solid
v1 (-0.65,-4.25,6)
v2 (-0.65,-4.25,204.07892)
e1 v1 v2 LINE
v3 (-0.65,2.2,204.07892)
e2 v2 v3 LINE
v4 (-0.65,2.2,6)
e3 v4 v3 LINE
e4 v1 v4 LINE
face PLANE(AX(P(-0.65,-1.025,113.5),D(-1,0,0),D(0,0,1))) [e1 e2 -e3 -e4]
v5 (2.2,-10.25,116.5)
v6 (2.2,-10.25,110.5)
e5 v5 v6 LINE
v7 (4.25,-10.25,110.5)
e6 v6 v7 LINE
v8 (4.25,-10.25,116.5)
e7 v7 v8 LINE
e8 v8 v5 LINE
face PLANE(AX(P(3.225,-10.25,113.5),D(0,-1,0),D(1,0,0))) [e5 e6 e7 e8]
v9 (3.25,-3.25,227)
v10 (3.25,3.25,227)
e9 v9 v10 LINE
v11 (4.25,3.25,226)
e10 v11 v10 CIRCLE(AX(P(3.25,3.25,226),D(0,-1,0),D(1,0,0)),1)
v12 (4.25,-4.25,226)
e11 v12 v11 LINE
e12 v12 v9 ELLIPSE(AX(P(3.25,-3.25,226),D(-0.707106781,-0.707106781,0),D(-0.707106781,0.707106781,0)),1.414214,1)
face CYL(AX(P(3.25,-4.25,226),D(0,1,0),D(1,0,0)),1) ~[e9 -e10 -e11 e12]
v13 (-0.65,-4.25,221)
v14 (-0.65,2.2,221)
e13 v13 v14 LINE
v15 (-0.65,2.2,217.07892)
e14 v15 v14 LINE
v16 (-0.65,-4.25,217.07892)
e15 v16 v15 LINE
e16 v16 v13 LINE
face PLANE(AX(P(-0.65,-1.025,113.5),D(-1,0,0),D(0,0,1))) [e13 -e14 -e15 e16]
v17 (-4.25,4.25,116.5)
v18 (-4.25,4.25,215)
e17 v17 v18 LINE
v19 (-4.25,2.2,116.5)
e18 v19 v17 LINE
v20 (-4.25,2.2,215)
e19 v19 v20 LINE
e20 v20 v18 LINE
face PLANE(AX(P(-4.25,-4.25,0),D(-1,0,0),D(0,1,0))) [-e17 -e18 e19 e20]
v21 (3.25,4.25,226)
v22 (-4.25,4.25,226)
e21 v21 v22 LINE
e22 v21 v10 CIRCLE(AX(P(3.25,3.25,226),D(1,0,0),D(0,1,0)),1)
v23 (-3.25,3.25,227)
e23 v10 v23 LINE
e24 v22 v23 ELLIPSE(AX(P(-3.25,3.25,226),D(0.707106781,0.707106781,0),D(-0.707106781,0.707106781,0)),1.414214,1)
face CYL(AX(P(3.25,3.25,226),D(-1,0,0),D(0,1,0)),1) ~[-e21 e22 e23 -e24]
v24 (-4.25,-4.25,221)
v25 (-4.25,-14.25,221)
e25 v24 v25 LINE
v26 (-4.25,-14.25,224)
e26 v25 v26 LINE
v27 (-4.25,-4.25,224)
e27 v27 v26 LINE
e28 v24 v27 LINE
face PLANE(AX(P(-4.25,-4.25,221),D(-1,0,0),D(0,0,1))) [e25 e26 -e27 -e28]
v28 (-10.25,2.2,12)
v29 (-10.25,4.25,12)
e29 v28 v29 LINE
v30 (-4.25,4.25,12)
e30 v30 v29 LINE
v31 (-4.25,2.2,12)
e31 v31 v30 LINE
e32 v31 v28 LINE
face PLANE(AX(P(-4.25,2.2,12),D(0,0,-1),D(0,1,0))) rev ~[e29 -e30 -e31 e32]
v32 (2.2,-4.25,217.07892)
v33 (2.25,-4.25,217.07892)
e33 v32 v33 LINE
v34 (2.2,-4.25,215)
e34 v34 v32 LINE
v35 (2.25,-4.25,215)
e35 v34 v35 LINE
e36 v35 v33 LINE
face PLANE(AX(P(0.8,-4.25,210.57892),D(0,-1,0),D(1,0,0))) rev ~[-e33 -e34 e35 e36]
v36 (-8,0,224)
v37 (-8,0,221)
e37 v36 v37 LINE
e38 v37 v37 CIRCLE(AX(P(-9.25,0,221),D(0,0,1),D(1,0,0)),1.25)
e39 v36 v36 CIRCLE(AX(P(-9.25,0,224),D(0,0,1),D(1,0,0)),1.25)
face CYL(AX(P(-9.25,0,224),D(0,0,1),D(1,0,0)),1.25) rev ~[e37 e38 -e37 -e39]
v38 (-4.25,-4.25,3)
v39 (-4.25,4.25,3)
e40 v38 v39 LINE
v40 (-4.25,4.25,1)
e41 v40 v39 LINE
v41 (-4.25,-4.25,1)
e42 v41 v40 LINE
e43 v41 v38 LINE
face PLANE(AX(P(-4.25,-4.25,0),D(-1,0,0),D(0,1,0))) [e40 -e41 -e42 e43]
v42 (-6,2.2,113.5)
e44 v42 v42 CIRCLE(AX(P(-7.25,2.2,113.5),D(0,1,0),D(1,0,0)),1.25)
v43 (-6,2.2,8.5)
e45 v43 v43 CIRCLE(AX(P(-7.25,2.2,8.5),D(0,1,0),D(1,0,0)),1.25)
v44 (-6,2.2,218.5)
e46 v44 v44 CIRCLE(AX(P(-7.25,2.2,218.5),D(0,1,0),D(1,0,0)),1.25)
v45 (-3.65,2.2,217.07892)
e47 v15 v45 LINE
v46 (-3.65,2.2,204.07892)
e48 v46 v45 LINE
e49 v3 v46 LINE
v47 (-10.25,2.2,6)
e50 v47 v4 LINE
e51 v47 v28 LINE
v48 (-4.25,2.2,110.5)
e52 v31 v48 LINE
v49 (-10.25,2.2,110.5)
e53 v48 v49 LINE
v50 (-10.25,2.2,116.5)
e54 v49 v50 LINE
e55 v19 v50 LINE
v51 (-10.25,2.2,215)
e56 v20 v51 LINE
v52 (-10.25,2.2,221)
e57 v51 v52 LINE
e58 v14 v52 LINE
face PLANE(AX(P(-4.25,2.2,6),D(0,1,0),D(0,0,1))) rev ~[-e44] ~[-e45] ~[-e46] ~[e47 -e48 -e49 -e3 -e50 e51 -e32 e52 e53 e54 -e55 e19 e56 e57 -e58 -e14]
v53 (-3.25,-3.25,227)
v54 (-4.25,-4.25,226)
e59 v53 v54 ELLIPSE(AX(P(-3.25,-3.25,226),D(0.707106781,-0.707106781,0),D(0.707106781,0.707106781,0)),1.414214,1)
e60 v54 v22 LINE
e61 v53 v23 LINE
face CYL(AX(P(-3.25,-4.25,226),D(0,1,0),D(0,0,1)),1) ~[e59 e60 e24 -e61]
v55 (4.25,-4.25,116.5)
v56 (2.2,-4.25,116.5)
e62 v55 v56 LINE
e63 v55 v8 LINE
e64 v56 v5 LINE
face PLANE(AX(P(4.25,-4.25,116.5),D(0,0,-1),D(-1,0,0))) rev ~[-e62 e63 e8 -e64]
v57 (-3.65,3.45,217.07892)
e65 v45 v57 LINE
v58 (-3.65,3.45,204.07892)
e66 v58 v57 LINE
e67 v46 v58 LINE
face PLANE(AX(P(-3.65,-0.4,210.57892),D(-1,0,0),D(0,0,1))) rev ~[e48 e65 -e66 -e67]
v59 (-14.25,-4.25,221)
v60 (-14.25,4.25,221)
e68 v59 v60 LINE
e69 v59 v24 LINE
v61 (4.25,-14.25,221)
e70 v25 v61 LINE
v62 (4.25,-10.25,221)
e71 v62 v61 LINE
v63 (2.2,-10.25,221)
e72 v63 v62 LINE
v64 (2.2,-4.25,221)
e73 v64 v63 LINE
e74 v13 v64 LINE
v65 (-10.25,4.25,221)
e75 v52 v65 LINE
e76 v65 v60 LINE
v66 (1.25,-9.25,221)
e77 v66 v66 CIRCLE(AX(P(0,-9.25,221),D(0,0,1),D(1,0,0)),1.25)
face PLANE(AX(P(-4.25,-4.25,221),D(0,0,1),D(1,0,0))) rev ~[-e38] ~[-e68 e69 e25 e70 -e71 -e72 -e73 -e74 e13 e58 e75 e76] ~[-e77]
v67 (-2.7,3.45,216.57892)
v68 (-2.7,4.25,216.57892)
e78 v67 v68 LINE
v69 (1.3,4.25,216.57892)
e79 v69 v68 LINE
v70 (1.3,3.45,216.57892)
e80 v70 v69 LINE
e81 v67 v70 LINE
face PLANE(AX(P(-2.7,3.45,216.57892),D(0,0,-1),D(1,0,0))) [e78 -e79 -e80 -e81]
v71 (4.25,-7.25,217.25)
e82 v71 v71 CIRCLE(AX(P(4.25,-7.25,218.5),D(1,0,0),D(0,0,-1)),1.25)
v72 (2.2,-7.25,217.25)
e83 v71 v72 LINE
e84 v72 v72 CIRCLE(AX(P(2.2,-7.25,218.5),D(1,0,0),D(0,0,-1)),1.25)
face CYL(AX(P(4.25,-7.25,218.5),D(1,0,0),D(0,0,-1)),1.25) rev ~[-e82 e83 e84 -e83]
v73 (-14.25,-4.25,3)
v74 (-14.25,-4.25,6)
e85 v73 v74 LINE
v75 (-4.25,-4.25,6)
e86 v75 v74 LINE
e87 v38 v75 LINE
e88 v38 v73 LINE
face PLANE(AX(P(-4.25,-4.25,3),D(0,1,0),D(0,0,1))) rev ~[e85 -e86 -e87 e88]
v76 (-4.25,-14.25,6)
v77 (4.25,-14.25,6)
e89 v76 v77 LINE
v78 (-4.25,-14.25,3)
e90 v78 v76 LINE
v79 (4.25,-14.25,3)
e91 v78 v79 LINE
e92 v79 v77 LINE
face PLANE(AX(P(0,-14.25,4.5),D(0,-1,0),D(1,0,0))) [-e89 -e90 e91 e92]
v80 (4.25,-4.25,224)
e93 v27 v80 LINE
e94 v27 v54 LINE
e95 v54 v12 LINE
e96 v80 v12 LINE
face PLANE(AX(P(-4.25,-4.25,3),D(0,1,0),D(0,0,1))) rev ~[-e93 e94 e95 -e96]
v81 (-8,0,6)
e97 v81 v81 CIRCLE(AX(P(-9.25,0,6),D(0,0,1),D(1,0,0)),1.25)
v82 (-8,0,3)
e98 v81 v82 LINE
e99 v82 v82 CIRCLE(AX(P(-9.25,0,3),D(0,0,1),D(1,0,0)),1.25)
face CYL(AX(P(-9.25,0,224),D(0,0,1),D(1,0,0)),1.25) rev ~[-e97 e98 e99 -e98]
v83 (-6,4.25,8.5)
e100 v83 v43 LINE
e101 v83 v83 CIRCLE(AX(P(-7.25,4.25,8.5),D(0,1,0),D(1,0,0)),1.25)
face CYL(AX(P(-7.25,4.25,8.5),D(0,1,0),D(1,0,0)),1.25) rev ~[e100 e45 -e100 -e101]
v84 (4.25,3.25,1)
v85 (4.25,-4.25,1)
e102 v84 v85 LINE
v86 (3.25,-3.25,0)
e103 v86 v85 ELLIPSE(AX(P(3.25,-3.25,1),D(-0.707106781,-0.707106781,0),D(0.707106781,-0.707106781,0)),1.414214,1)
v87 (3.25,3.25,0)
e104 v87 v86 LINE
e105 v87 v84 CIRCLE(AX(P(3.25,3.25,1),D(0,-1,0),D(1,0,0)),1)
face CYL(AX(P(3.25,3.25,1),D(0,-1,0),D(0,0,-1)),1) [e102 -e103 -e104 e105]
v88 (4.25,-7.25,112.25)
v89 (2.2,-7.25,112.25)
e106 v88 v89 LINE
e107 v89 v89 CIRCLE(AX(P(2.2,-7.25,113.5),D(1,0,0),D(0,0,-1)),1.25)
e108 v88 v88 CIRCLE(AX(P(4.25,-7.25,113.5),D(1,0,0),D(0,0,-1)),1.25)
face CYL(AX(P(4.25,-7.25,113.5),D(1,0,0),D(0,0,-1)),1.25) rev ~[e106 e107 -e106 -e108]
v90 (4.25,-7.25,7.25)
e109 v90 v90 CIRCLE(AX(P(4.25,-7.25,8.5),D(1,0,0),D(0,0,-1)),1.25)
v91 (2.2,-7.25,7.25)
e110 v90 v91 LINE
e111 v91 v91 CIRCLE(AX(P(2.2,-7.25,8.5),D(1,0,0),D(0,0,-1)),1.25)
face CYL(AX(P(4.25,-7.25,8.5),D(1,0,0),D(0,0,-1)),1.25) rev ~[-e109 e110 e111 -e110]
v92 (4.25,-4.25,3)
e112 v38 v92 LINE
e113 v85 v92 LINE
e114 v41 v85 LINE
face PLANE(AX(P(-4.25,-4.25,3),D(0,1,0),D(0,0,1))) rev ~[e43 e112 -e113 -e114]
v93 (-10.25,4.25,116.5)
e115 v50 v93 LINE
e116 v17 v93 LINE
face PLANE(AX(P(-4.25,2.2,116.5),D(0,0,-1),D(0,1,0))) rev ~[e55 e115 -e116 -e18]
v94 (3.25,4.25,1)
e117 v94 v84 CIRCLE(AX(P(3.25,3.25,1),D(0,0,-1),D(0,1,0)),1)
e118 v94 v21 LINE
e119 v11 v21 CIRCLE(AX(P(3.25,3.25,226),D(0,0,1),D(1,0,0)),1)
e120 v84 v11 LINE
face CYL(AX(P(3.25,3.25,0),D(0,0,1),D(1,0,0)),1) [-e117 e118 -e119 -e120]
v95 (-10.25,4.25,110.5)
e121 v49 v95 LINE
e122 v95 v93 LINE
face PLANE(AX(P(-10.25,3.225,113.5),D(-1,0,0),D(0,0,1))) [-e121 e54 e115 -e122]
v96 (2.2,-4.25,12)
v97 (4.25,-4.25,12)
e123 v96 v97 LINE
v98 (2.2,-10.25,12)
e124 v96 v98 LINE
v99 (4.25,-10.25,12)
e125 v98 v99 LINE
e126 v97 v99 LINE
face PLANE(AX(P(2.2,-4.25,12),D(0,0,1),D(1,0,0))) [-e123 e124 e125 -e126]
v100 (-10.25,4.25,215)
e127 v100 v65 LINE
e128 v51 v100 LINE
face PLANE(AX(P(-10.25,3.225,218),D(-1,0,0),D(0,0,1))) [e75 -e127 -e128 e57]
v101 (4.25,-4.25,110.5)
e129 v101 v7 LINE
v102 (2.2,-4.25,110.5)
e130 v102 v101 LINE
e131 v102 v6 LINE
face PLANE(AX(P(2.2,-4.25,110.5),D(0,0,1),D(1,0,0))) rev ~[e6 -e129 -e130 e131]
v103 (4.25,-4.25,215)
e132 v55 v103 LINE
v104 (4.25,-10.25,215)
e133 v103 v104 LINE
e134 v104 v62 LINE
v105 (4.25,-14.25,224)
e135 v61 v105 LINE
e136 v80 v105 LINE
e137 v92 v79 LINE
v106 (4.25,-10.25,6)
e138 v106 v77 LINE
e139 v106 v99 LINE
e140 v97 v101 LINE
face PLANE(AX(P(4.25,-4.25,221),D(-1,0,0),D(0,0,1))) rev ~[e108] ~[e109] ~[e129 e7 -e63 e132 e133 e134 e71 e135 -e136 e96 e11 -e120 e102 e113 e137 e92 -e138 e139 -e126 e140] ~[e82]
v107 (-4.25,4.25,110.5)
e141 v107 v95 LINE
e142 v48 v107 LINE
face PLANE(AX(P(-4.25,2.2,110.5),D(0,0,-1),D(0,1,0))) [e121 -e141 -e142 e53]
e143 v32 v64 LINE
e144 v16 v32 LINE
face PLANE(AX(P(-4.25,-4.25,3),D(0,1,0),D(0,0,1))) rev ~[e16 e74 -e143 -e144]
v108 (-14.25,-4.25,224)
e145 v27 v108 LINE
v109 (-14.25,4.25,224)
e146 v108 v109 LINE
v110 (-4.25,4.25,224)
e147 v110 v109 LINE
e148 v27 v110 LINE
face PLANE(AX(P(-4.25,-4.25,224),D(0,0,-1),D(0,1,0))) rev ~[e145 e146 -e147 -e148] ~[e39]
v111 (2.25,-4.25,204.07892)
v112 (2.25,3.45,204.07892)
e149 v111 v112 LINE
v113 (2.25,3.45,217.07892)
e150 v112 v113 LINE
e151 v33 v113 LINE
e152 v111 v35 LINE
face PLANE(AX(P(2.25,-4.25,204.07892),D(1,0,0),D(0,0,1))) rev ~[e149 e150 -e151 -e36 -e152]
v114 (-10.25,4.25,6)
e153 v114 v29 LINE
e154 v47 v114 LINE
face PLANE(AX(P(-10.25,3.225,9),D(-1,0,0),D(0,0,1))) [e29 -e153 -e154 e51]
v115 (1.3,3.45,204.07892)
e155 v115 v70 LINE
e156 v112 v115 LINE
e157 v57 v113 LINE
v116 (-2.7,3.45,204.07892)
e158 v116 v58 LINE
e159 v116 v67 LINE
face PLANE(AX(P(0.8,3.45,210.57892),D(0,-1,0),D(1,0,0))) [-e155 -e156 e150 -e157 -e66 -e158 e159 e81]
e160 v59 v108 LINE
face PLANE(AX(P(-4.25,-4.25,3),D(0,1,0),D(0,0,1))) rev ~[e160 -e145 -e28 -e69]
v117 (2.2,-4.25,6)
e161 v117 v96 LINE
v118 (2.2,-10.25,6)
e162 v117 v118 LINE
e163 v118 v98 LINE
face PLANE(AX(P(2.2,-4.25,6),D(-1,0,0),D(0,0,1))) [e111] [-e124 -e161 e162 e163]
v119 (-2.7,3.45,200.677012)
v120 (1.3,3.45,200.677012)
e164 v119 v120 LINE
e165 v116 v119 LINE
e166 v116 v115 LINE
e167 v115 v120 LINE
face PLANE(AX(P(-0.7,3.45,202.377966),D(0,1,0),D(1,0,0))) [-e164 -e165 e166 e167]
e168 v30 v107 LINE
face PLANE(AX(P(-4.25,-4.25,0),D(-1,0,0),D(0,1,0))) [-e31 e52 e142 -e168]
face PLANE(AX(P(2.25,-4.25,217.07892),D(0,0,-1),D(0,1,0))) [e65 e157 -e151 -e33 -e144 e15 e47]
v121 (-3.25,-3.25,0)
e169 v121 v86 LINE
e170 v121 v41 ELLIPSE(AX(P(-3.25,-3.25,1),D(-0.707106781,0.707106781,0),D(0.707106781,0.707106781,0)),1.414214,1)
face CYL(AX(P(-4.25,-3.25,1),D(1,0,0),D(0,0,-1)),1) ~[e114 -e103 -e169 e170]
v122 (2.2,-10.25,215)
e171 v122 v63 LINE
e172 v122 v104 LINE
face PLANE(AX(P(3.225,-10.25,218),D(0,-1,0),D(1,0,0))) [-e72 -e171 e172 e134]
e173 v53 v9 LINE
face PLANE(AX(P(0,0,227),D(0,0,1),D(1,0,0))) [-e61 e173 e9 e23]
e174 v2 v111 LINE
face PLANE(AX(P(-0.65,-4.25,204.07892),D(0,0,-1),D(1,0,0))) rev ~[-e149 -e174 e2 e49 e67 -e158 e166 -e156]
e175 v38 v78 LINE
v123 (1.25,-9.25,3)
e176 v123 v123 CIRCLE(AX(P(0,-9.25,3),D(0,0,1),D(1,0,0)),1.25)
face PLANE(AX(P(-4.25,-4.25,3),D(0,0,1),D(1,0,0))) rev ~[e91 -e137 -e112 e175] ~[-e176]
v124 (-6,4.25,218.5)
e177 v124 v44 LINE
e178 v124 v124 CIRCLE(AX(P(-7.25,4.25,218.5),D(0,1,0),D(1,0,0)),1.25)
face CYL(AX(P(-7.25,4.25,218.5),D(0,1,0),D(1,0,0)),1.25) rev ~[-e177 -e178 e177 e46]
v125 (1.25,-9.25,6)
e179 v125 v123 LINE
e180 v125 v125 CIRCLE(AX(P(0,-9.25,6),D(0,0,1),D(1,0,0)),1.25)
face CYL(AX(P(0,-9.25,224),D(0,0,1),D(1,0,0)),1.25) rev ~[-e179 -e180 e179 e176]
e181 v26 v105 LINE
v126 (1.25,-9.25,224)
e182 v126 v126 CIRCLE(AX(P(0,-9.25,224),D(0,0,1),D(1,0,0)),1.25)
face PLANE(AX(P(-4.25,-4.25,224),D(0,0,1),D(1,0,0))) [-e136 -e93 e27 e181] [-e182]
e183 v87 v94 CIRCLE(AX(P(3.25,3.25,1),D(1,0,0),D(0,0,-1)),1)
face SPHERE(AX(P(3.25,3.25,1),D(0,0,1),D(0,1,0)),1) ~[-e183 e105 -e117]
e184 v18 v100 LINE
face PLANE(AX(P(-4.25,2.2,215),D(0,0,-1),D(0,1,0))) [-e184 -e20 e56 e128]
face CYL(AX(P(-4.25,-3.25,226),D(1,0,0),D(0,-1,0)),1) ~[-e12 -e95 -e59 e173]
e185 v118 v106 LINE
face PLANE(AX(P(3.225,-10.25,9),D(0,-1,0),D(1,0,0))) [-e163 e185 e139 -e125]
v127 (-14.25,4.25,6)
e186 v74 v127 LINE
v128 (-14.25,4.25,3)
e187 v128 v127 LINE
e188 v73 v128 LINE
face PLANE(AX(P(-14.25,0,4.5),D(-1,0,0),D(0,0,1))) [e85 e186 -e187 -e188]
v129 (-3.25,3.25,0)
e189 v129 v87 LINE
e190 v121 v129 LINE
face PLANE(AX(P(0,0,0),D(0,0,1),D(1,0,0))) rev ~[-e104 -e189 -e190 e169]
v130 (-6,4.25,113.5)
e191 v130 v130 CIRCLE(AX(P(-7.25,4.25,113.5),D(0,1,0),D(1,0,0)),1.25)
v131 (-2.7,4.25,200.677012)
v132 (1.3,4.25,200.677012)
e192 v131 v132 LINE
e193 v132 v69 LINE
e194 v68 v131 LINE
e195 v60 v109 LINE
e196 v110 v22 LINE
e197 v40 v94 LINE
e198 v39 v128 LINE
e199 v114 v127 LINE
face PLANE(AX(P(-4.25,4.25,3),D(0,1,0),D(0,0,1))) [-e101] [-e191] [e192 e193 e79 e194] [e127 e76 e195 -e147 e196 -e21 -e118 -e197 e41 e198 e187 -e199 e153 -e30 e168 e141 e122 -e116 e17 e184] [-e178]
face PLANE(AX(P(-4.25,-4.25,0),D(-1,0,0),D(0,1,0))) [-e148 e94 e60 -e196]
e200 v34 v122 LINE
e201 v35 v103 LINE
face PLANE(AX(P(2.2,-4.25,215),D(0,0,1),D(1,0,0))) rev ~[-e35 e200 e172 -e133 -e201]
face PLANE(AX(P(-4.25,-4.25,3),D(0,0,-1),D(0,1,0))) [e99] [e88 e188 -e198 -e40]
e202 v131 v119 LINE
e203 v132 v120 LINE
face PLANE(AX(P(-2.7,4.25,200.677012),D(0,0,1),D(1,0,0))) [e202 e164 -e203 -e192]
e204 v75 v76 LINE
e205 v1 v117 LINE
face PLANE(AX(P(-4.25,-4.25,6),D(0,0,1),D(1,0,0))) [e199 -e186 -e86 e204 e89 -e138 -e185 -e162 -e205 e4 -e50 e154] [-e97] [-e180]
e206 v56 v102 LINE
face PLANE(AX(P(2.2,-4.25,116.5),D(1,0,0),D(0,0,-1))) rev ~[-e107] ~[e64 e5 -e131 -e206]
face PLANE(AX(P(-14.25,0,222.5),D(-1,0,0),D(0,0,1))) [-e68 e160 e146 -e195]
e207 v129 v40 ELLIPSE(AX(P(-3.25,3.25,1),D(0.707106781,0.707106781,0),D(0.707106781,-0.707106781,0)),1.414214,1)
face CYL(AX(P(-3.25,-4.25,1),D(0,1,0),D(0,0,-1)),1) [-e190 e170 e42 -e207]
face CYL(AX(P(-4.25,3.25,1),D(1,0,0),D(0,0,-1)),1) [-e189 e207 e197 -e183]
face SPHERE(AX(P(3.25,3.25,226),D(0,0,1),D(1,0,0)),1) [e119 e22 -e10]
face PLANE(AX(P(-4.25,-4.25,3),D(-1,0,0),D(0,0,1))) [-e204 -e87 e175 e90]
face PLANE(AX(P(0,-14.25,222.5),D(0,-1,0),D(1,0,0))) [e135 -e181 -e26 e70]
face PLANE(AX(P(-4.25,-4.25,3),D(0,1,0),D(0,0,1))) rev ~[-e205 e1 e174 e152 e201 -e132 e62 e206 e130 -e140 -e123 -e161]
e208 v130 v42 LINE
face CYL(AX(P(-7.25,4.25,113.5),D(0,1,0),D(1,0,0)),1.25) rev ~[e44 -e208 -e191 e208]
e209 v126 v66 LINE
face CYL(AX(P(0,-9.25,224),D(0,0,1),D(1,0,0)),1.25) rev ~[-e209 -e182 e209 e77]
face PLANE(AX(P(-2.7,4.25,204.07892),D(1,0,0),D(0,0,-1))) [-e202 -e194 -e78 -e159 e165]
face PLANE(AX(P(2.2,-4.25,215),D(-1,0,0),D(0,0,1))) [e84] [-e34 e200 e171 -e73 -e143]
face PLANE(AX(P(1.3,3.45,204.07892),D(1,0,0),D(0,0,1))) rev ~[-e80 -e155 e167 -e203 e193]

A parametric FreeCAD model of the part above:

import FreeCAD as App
import Part
import Sketcher

V = App.Vector


def edges_at(feature, points):
    """Names of the edges that pass closest to the given points."""
    edges = feature.Shape.Edges
    near = lambda p: min(range(len(edges)), key=lambda i: edges[i].distToShape(Part.Vertex(*p))[0])
    return sorted({f"Edge{near(p) + 1}" for p in points})

doc = App.newDocument("Part")
body = doc.addObject("PartDesign::Body", "Body")

# Sketch on XY plane
sketch1 = doc.addObject("Sketcher::SketchObject", "Sketch")
body.addObject(sketch1)
sketch1.AttachmentSupport = (doc.XY_Plane, [""])
sketch1.MapMode = "FlatFace"
sketch1.addGeometry([
    Part.LineSegment(V(-4, 4, 0), V(-4, -4, 0)),
    Part.LineSegment(V(-4, -4, 0), V(4, -4, 0)),
    Part.LineSegment(V(4, -4, 0), V(4, 4, 0)),
    Part.LineSegment(V(4, 4, 0), V(-4, 4, 0)),
], False)
sketch1.addConstraint([
    Sketcher.Constraint("Coincident", 0, 2, 1, 1),
    Sketcher.Constraint("Coincident", 1, 2, 2, 1),
    Sketcher.Constraint("Coincident", 2, 2, 3, 1),
    Sketcher.Constraint("Coincident", 3, 2, 0, 1),
    Sketcher.Constraint("Vertical", 0),
    Sketcher.Constraint("Horizontal", 1),
    Sketcher.Constraint("Vertical", 2),
    Sketcher.Constraint("Horizontal", 3),
    Sketcher.Constraint("Symmetric", 0, 2, 2, 2, -1, 1),
    Sketcher.Constraint("Equal", 3, 0),
    Sketcher.Constraint("DistanceX", 1, 1, 1, 2, 8.5),
])
pad1 = doc.addObject("PartDesign::Pad", "Pad")
body.addObject(pad1)
pad1.Profile = sketch1
pad1.Length = 227
doc.recompute()

fillet = doc.addObject("PartDesign::Fillet", "Fillet")
body.addObject(fillet)
fillet.Base = (pad1, edges_at(pad1, [(4.25, 4.25, 113.5)]))
fillet.Radius = 1
doc.recompute()

fillet2 = doc.addObject("PartDesign::Fillet", "Fillet001")
body.addObject(fillet2)
fillet2.Base = (fillet, edges_at(fillet, [
    (4.25, -0.5, 227),
    (-0.5, 4.25, 227),
    (3.957, 3.957, 227),
    (-4.25, 0, 227),
    (0, -4.25, 227),
]))
fillet2.Radius = 1
doc.recompute()

fillet3 = doc.addObject("PartDesign::Fillet", "Fillet002")
body.addObject(fillet3)
fillet3.Base = (fillet2, edges_at(fillet2, [
    (-0.5, 4.25, 0),
    (3.957, 3.957, 0),
    (4.25, -0.5, 0),
    (0, -4.25, 0),
    (-4.25, 0, 0),
]))
fillet3.Radius = 1

# Sketch on YZ plane
sketch2 = doc.addObject("Sketcher::SketchObject", "Sketch001")
body.addObject(sketch2)
sketch2.AttachmentSupport = (doc.YZ_Plane, [""])
sketch2.MapMode = "FlatFace"
sketch2.AttachmentOffset = App.Placement(V(0, 0, -4.25), App.Rotation())
sketch2.addGeometry([
    Part.LineSegment(V(2, 6, 0), V(-4, 6, 0)),
    Part.LineSegment(V(-4, 6, 0), V(-4, 221, 0)),
    Part.LineSegment(V(-4, 221, 0), V(2, 221, 0)),
    Part.LineSegment(V(2, 221, 0), V(2, 6, 0)),
], False)
sketch2.addConstraint([
    Sketcher.Constraint("Coincident", 0, 2, 1, 1),
    Sketcher.Constraint("Coincident", 1, 2, 2, 1),
    Sketcher.Constraint("Coincident", 2, 2, 3, 1),
    Sketcher.Constraint("Coincident", 3, 2, 0, 1),
    Sketcher.Constraint("Horizontal", 0),
    Sketcher.Constraint("Vertical", 1),
    Sketcher.Constraint("Horizontal", 2),
    Sketcher.Constraint("Vertical", 3),
    Sketcher.Constraint("DistanceY", 1, 1, 1, 2, 215.0),
    Sketcher.Constraint("DistanceY", -1, 1, 0, 2, 6.0),
    Sketcher.Constraint("DistanceX", 0, 2, 0, 1, 6.45),
    Sketcher.Constraint("DistanceX", -1, 1, 2, 2, 2.2),
])
pocket1 = doc.addObject("PartDesign::Pocket", "Pocket")
body.addObject(pocket1)
pocket1.Profile = sketch2
pocket1.Length = 3.6
pocket1.Reversed = True

# Sketch on YZ plane
sketch3 = doc.addObject("Sketcher::SketchObject", "Sketch002")
body.addObject(sketch3)
sketch3.AttachmentSupport = (doc.YZ_Plane, [""])
sketch3.MapMode = "FlatFace"
sketch3.AttachmentOffset = App.Placement(V(0, 0, -4.25), App.Rotation())
sketch3.addGeometry([
    Part.LineSegment(V(4.2, 3, 0), V(-4.2, 3, 0)),  # 0
    Part.LineSegment(V(-4.2, 3, 0), V(-4.2, 6, 0)),  # 1
    Part.LineSegment(V(-4.2, 6, 0), V(4.2, 6, 0)),  # 2
    Part.LineSegment(V(4.2, 6, 0), V(4.2, 3, 0)),  # 3
    Part.LineSegment(V(4.2, 221, 0), V(-4.2, 221, 0)),  # 4
    Part.LineSegment(V(-4.2, 221, 0), V(-4.2, 224, 0)),  # 5
    Part.LineSegment(V(-4.2, 224, 0), V(4.2, 224, 0)),  # 6
    Part.LineSegment(V(4.2, 224, 0), V(4.2, 221, 0)),  # 7
], False)
sketch3.addConstraint([
    Sketcher.Constraint("Coincident", 0, 2, 1, 1),
    Sketcher.Constraint("Coincident", 1, 2, 2, 1),
    Sketcher.Constraint("Coincident", 2, 2, 3, 1),
    Sketcher.Constraint("Coincident", 3, 2, 0, 1),
    Sketcher.Constraint("Coincident", 4, 2, 5, 1),
    Sketcher.Constraint("Coincident", 5, 2, 6, 1),
    Sketcher.Constraint("Coincident", 6, 2, 7, 1),
    Sketcher.Constraint("Coincident", 7, 2, 4, 1),
    Sketcher.Constraint("Horizontal", 0),
    Sketcher.Constraint("Vertical", 1),
    Sketcher.Constraint("Horizontal", 2),
    Sketcher.Constraint("Vertical", 3),
    Sketcher.Constraint("Horizontal", 4),
    Sketcher.Constraint("Vertical", 5),
    Sketcher.Constraint("Horizontal", 6),
    Sketcher.Constraint("Vertical", 7),
    Sketcher.Constraint("Vertical", 1, 2, 4, 2),
    Sketcher.Constraint("Vertical", 3, 2, 6, 2),
    Sketcher.Constraint("Equal", 3, 5),
    Sketcher.Constraint("DistanceY", 1, 1, 1, 2, 3.0),
    Sketcher.Constraint("DistanceX", 0, 2, 0, 1, 8.5),
    Sketcher.Constraint("DistanceY", -1, 1, 0, 2, 3.0),
    Sketcher.Constraint("DistanceY", -1, 1, 4, 2, 221.0),
    Sketcher.Constraint("DistanceX", 0, 2, -1, 1, 4.25),
])
pad2 = doc.addObject("PartDesign::Pad", "Pad001")
body.addObject(pad2)
pad2.Profile = sketch3
pad2.Length = 10
pad2.Reversed = True

# Sketch on XZ plane
sketch4 = doc.addObject("Sketcher::SketchObject", "Sketch003")
body.addObject(sketch4)
sketch4.AttachmentSupport = (doc.XZ_Plane, [""])
sketch4.MapMode = "FlatFace"
sketch4.AttachmentOffset = App.Placement(V(0, 0, 4.25), App.Rotation())
sketch4.addGeometry([
    Part.LineSegment(V(-4.2, 224, 0), V(-4.2, 221, 0)),  # 0
    Part.LineSegment(V(-4.2, 221, 0), V(4.2, 221, 0)),  # 1
    Part.LineSegment(V(4.2, 221, 0), V(4.2, 224, 0)),  # 2
    Part.LineSegment(V(4.2, 224, 0), V(-4.2, 224, 0)),  # 3
    Part.LineSegment(V(-4.2, 6, 0), V(-4.2, 3, 0)),  # 4
    Part.LineSegment(V(-4.2, 3, 0), V(4.2, 3, 0)),  # 5
    Part.LineSegment(V(4.2, 3, 0), V(4.2, 6, 0)),  # 6
    Part.LineSegment(V(4.2, 6, 0), V(-4.2, 6, 0)),  # 7
], False)
sketch4.addConstraint([
    Sketcher.Constraint("Coincident", 0, 2, 1, 1),
    Sketcher.Constraint("Coincident", 1, 2, 2, 1),
    Sketcher.Constraint("Coincident", 2, 2, 3, 1),
    Sketcher.Constraint("Coincident", 3, 2, 0, 1),
    Sketcher.Constraint("Coincident", 4, 2, 5, 1),
    Sketcher.Constraint("Coincident", 5, 2, 6, 1),
    Sketcher.Constraint("Coincident", 6, 2, 7, 1),
    Sketcher.Constraint("Coincident", 7, 2, 4, 1),
    Sketcher.Constraint("Vertical", 0),
    Sketcher.Constraint("Horizontal", 1),
    Sketcher.Constraint("Vertical", 2),
    Sketcher.Constraint("Horizontal", 3),
    Sketcher.Constraint("Vertical", 4),
    Sketcher.Constraint("Horizontal", 5),
    Sketcher.Constraint("Vertical", 6),
    Sketcher.Constraint("Horizontal", 7),
    Sketcher.Constraint("Vertical", 3, 2, 4, 2),
    Sketcher.Constraint("Vertical", 2, 2, 5, 2),
    Sketcher.Constraint("Equal", 2, 4),
    Sketcher.Constraint("DistanceY", 0, 2, 0, 1, 3.0),
    Sketcher.Constraint("DistanceX", 1, 1, 1, 2, 8.5),
    Sketcher.Constraint("DistanceY", -1, 1, 0, 2, 221.0),
    Sketcher.Constraint("DistanceY", -1, 1, 4, 2, 3.0),
    Sketcher.Constraint("DistanceX", 0, 2, -1, 1, 4.25),
])
pad3 = doc.addObject("PartDesign::Pad", "Pad002")
body.addObject(pad3)
pad3.Profile = sketch4
pad3.Length = 10

# Sketch on YZ plane
sketch5 = doc.addObject("Sketcher::SketchObject", "Sketch004")
body.addObject(sketch5)
sketch5.AttachmentSupport = (doc.YZ_Plane, [""])
sketch5.MapMode = "FlatFace"
sketch5.AttachmentOffset = App.Placement(V(0, 0, -4.25), App.Rotation())
sketch5.addGeometry([
    Part.LineSegment(V(4.2, 6, 0), V(2.2, 6, 0)),  # 0
    Part.LineSegment(V(2.2, 6, 0), V(2.2, 12, 0)),  # 1
    Part.LineSegment(V(2.2, 12, 0), V(4.2, 12, 0)),  # 2
    Part.LineSegment(V(4.2, 12, 0), V(4.2, 6, 0)),  # 3
    Part.LineSegment(V(4.2, 215, 0), V(2.2, 215, 0)),  # 4
    Part.LineSegment(V(2.2, 215, 0), V(2.2, 221, 0)),  # 5
    Part.LineSegment(V(2.2, 221, 0), V(4.2, 221, 0)),  # 6
    Part.LineSegment(V(4.2, 221, 0), V(4.2, 215, 0)),  # 7
    Part.LineSegment(V(4.2, 110.5, 0), V(2.2, 110.5, 0)),  # 8
    Part.LineSegment(V(2.2, 110.5, 0), V(2.2, 116.5, 0)),  # 9
    Part.LineSegment(V(2.2, 116.5, 0), V(4.2, 116.5, 0)),  # 10
    Part.LineSegment(V(4.2, 116.5, 0), V(4.2, 110.5, 0)),  # 11
], False)
sketch5.addConstraint([
    Sketcher.Constraint("Coincident", 0, 2, 1, 1),
    Sketcher.Constraint("Coincident", 1, 2, 2, 1),
    Sketcher.Constraint("Coincident", 2, 2, 3, 1),
    Sketcher.Constraint("Coincident", 3, 2, 0, 1),
    Sketcher.Constraint("Coincident", 4, 2, 5, 1),
    Sketcher.Constraint("Coincident", 5, 2, 6, 1),
    Sketcher.Constraint("Coincident", 6, 2, 7, 1),
    Sketcher.Constraint("Coincident", 7, 2, 4, 1),
    Sketcher.Constraint("Coincident", 8, 2, 9, 1),
    Sketcher.Constraint("Coincident", 9, 2, 10, 1),
    Sketcher.Constraint("Coincident", 10, 2, 11, 1),
    Sketcher.Constraint("Coincident", 11, 2, 8, 1),
    Sketcher.Constraint("Horizontal", 0),
    Sketcher.Constraint("Vertical", 1),
    Sketcher.Constraint("Horizontal", 2),
    Sketcher.Constraint("Vertical", 3),
    Sketcher.Constraint("Horizontal", 4),
    Sketcher.Constraint("Vertical", 5),
    Sketcher.Constraint("Horizontal", 6),
    Sketcher.Constraint("Vertical", 7),
    Sketcher.Constraint("Horizontal", 8),
    Sketcher.Constraint("Vertical", 9),
    Sketcher.Constraint("Horizontal", 10),
    Sketcher.Constraint("Vertical", 11),
    Sketcher.Constraint("Vertical", 1, 2, 4, 2),
    Sketcher.Constraint("Vertical", 3, 2, 6, 2),
    Sketcher.Constraint("Vertical", 5, 2, 8, 2),
    Sketcher.Constraint("Vertical", 7, 2, 10, 2),
    Sketcher.Constraint("Equal", 3, 5),
    Sketcher.Constraint("Equal", 7, 9),
    Sketcher.Constraint("DistanceY", 1, 1, 1, 2, 6.0),
    Sketcher.Constraint("DistanceY", -1, 1, 0, 2, 6.0),
    Sketcher.Constraint("DistanceY", -1, 1, 4, 2, 215.0),
    Sketcher.Constraint("DistanceX", 0, 2, 0, 1, 2.05),
    Sketcher.Constraint("DistanceX", -1, 1, 0, 2, 2.2),
    Sketcher.Constraint("DistanceY", -1, 1, 8, 2, 110.5),
])
pad4 = doc.addObject("PartDesign::Pad", "Pad003")
body.addObject(pad4)
pad4.Profile = sketch5
pad4.Length = 6
pad4.Reversed = True

# Sketch on XZ plane
sketch6 = doc.addObject("Sketcher::SketchObject", "Sketch005")
body.addObject(sketch6)
sketch6.AttachmentSupport = (doc.XZ_Plane, [""])
sketch6.MapMode = "FlatFace"
sketch6.AttachmentOffset = App.Placement(V(0, 0, 4.25), App.Rotation())
sketch6.addGeometry([
    Part.LineSegment(V(2.2, 12, 0), V(2.2, 6, 0)),  # 0
    Part.LineSegment(V(2.2, 6, 0), V(4.2, 6, 0)),  # 1
    Part.LineSegment(V(4.2, 6, 0), V(4.2, 12, 0)),  # 2
    Part.LineSegment(V(4.2, 12, 0), V(2.2, 12, 0)),  # 3
    Part.LineSegment(V(4.2, 116.5, 0), V(2.2, 116.5, 0)),  # 4
    Part.LineSegment(V(2.2, 116.5, 0), V(2.2, 110.5, 0)),  # 5
    Part.LineSegment(V(2.2, 110.5, 0), V(4.2, 110.5, 0)),  # 6
    Part.LineSegment(V(4.2, 110.5, 0), V(4.2, 116.5, 0)),  # 7
    Part.LineSegment(V(2.2, 221, 0), V(2.2, 215, 0)),  # 8
    Part.LineSegment(V(2.2, 215, 0), V(4.2, 215, 0)),  # 9
    Part.LineSegment(V(4.2, 215, 0), V(4.2, 221, 0)),  # 10
    Part.LineSegment(V(4.2, 221, 0), V(2.2, 221, 0)),  # 11
], False)
sketch6.addConstraint([
    Sketcher.Constraint("Coincident", 0, 2, 1, 1),
    Sketcher.Constraint("Coincident", 1, 2, 2, 1),
    Sketcher.Constraint("Coincident", 2, 2, 3, 1),
    Sketcher.Constraint("Coincident", 3, 2, 0, 1),
    Sketcher.Constraint("Coincident", 4, 2, 5, 1),
    Sketcher.Constraint("Coincident", 5, 2, 6, 1),
    Sketcher.Constraint("Coincident", 6, 2, 7, 1),
    Sketcher.Constraint("Coincident", 7, 2, 4, 1),
    Sketcher.Constraint("Coincident", 8, 2, 9, 1),
    Sketcher.Constraint("Coincident", 9, 2, 10, 1),
    Sketcher.Constraint("Coincident", 10, 2, 11, 1),
    Sketcher.Constraint("Coincident", 11, 2, 8, 1),
    Sketcher.Constraint("Vertical", 0),
    Sketcher.Constraint("Horizontal", 1),
    Sketcher.Constraint("Vertical", 2),
    Sketcher.Constraint("Horizontal", 3),
    Sketcher.Constraint("Horizontal", 4),
    Sketcher.Constraint("Vertical", 5),
    Sketcher.Constraint("Horizontal", 6),
    Sketcher.Constraint("Vertical", 7),
    Sketcher.Constraint("Vertical", 8),
    Sketcher.Constraint("Horizontal", 9),
    Sketcher.Constraint("Vertical", 10),
    Sketcher.Constraint("Horizontal", 11),
    Sketcher.Constraint("Vertical", 3, 2, 4, 2),
    Sketcher.Constraint("Vertical", 2, 2, 6, 2),
    Sketcher.Constraint("Vertical", 5, 2, 8, 2),
    Sketcher.Constraint("Vertical", 7, 2, 9, 2),
    Sketcher.Constraint("Equal", 2, 5),
    Sketcher.Constraint("Equal", 7, 8),
    Sketcher.Constraint("DistanceY", 0, 2, 0, 1, 6.0),
    Sketcher.Constraint("DistanceY", -1, 1, 0, 2, 6.0),
    Sketcher.Constraint("DistanceY", -1, 1, 8, 2, 215.0),
    Sketcher.Constraint("DistanceX", 1, 1, 1, 2, 2.05),
    Sketcher.Constraint("DistanceX", -1, 1, 0, 2, 2.2),
    Sketcher.Constraint("DistanceY", -1, 1, 4, 2, 116.5),
])
pad5 = doc.addObject("PartDesign::Pad", "Pad004")
body.addObject(pad5)
pad5.Profile = sketch6
pad5.Length = 6

# Sketch on XZ plane
sketch7 = doc.addObject("Sketcher::SketchObject", "Sketch006")
body.addObject(sketch7)
sketch7.AttachmentSupport = (doc.XZ_Plane, [""])
sketch7.MapMode = "FlatFace"
sketch7.AttachmentOffset = App.Placement(V(0, 0, 4.25), App.Rotation())
sketch7.addGeometry([
    Part.LineSegment(V(2.2, 12, 0), V(2.2, 6, 0)),  # 0
    Part.LineSegment(V(2.2, 6, 0), V(4.2, 6, 0)),  # 1
    Part.LineSegment(V(4.2, 6, 0), V(4.2, 12, 0)),  # 2
    Part.LineSegment(V(4.2, 12, 0), V(2.2, 12, 0)),  # 3
    Part.LineSegment(V(4.2, 116.5, 0), V(2.2, 116.5, 0)),  # 4
    Part.LineSegment(V(2.2, 116.5, 0), V(2.2, 110.5, 0)),  # 5
    Part.LineSegment(V(2.2, 110.5, 0), V(4.2, 110.5, 0)),  # 6
    Part.LineSegment(V(4.2, 110.5, 0), V(4.2, 116.5, 0)),  # 7
    Part.LineSegment(V(2.2, 221, 0), V(2.2, 215, 0)),  # 8
    Part.LineSegment(V(2.2, 215, 0), V(4.2, 215, 0)),  # 9
    Part.LineSegment(V(4.2, 215, 0), V(4.2, 221, 0)),  # 10
    Part.LineSegment(V(4.2, 221, 0), V(2.2, 221, 0)),  # 11
], False)
sketch7.addConstraint([
    Sketcher.Constraint("Coincident", 0, 2, 1, 1),
    Sketcher.Constraint("Coincident", 1, 2, 2, 1),
    Sketcher.Constraint("Coincident", 2, 2, 3, 1),
    Sketcher.Constraint("Coincident", 3, 2, 0, 1),
    Sketcher.Constraint("Coincident", 4, 2, 5, 1),
    Sketcher.Constraint("Coincident", 5, 2, 6, 1),
    Sketcher.Constraint("Coincident", 6, 2, 7, 1),
    Sketcher.Constraint("Coincident", 7, 2, 4, 1),
    Sketcher.Constraint("Coincident", 8, 2, 9, 1),
    Sketcher.Constraint("Coincident", 9, 2, 10, 1),
    Sketcher.Constraint("Coincident", 10, 2, 11, 1),
    Sketcher.Constraint("Coincident", 11, 2, 8, 1),
    Sketcher.Constraint("Vertical", 0),
    Sketcher.Constraint("Horizontal", 1),
    Sketcher.Constraint("Vertical", 2),
    Sketcher.Constraint("Horizontal", 3),
    Sketcher.Constraint("Horizontal", 4),
    Sketcher.Constraint("Vertical", 5),
    Sketcher.Constraint("Horizontal", 6),
    Sketcher.Constraint("Vertical", 7),
    Sketcher.Constraint("Vertical", 8),
    Sketcher.Constraint("Horizontal", 9),
    Sketcher.Constraint("Vertical", 10),
    Sketcher.Constraint("Horizontal", 11),
    Sketcher.Constraint("Vertical", 3, 2, 4, 2),
    Sketcher.Constraint("Vertical", 2, 2, 6, 2),
    Sketcher.Constraint("Vertical", 5, 2, 8, 2),
    Sketcher.Constraint("Vertical", 7, 2, 9, 2),
    Sketcher.Constraint("Equal", 2, 5),
    Sketcher.Constraint("Equal", 7, 8),
    Sketcher.Constraint("DistanceY", 0, 2, 0, 1, 6.0),
    Sketcher.Constraint("DistanceY", -1, 1, 0, 2, 6.0),
    Sketcher.Constraint("DistanceY", -1, 1, 8, 2, 215.0),
    Sketcher.Constraint("DistanceX", 1, 1, 1, 2, 2.05),
    Sketcher.Constraint("DistanceX", -1, 1, 0, 2, 2.2),
    Sketcher.Constraint("DistanceY", -1, 1, 4, 2, 116.5),
])
pad6 = doc.addObject("PartDesign::Pad", "Pad005")
body.addObject(pad6)
pad6.Profile = sketch7
pad6.Length = 6

# Sketch on XY plane
sketch8 = doc.addObject("Sketcher::SketchObject", "Sketch007")
body.addObject(sketch8)
sketch8.AttachmentSupport = (doc.XY_Plane, [""])
sketch8.MapMode = "FlatFace"
sketch8.AttachmentOffset = App.Placement(V(0, 0, 224), App.Rotation())
sketch8.addGeometry([
    Part.Circle(V(-9.2, 0, 0), V(0, 0, 1), 1.2),
    Part.Circle(V(0, -9.2, 0), V(0, 0, 1), 1.2),
], False)
sketch8.addConstraint([
    Sketcher.Constraint("Equal", 0, 1),
    Sketcher.Constraint("PointOnObject", 0, 3, -1),
    Sketcher.Constraint("PointOnObject", 1, 3, -2),
    Sketcher.Constraint("Diameter", 0, 2.5),
    Sketcher.Constraint("DistanceX", 0, 3, -1, 1, 9.25),
    Sketcher.Constraint("DistanceY", 1, 3, -1, 1, 9.25),
])
pocket2 = doc.addObject("PartDesign::Pocket", "Pocket001")
body.addObject(pocket2)
pocket2.Profile = sketch8
pocket2.Length = 250

# Sketch on YZ plane
sketch9 = doc.addObject("Sketcher::SketchObject", "Sketch008")
body.addObject(sketch9)
sketch9.AttachmentSupport = (doc.YZ_Plane, [""])
sketch9.MapMode = "FlatFace"
sketch9.AttachmentOffset = App.Placement(V(0, 0, 4.25), App.Rotation())
sketch9.addGeometry([
    Part.Circle(V(-7.2, 218.5, 0), V(0, 0, 1), 1.2),
    Part.Circle(V(-7.2, 113.5, 0), V(0, 0, 1), 1.2),
    Part.Circle(V(-7.2, 8.5, 0), V(0, 0, 1), 1.2),
], False)
sketch9.addConstraint([
    Sketcher.Constraint("Equal", 0, 1),
    Sketcher.Constraint("Equal", 1, 2),
    Sketcher.Constraint("Vertical", 0, 3, 1, 3),
    Sketcher.Constraint("Vertical", 1, 3, 2, 3),
    Sketcher.Constraint("Diameter", 0, 2.5),
    Sketcher.Constraint("DistanceY", 1, 3, 0, 3, 105.0),
    Sketcher.Constraint("DistanceY", 2, 3, 1, 3, 105.0),
    Sketcher.Constraint("DistanceY", -1, 1, 0, 3, 218.5),
    Sketcher.Constraint("DistanceX", 0, 3, -1, 1, 7.25),
])
pocket3 = doc.addObject("PartDesign::Pocket", "Pocket002")
body.addObject(pocket3)
pocket3.Profile = sketch9
pocket3.Length = 5

# Sketch on XZ plane
sketch10 = doc.addObject("Sketcher::SketchObject", "Sketch009")
body.addObject(sketch10)
sketch10.AttachmentSupport = (doc.XZ_Plane, [""])
sketch10.MapMode = "FlatFace"
sketch10.AttachmentOffset = App.Placement(V(0, 0, -4.25), App.Rotation())
sketch10.addGeometry([
    Part.Circle(V(-7.2, 218.5, 0), V(0, 0, 1), 1.2),
    Part.Circle(V(-7.2, 113.5, 0), V(0, 0, 1), 1.2),
    Part.Circle(V(-7.2, 8.5, 0), V(0, 0, 1), 1.2),
], False)
sketch10.addConstraint([
    Sketcher.Constraint("Equal", 0, 1),
    Sketcher.Constraint("Equal", 1, 2),
    Sketcher.Constraint("Vertical", 0, 3, 1, 3),
    Sketcher.Constraint("Vertical", 1, 3, 2, 3),
    Sketcher.Constraint("Diameter", 0, 2.5),
    Sketcher.Constraint("DistanceY", 1, 3, 0, 3, 105.0),
    Sketcher.Constraint("DistanceY", 2, 3, 1, 3, 105.0),
    Sketcher.Constraint("DistanceY", -1, 1, 0, 3, 218.5),
    Sketcher.Constraint("DistanceX", 0, 3, -1, 1, 7.25),
])
pocket4 = doc.addObject("PartDesign::Pocket", "Pocket003")
body.addObject(pocket4)
pocket4.Profile = sketch10
pocket4.Length = 5
pocket4.Reversed = True

# Sketch on XZ plane
sketch11 = doc.addObject("Sketcher::SketchObject", "Sketch010")
body.addObject(sketch11)
sketch11.AttachmentSupport = (doc.XZ_Plane, [""])
sketch11.MapMode = "FlatFace"
sketch11.AttachmentOffset = App.Placement(V(0, 0, 4.25), App.Rotation())
sketch11.addGeometry([
    Part.LineSegment(V(-0.7, 217.1, 0), V(-0.7, 204.1, 0)),
    Part.LineSegment(V(-0.7, 204.1, 0), V(2.2, 204.1, 0)),
    Part.LineSegment(V(2.2, 204.1, 0), V(2.2, 217.1, 0)),
    Part.LineSegment(V(2.2, 217.1, 0), V(-0.7, 217.1, 0)),
], False)
sketch11.addConstraint([
    Sketcher.Constraint("Coincident", 0, 2, 1, 1),
    Sketcher.Constraint("Coincident", 1, 2, 2, 1),
    Sketcher.Constraint("Coincident", 2, 2, 3, 1),
    Sketcher.Constraint("Coincident", 3, 2, 0, 1),
    Sketcher.Constraint("Vertical", 0),
    Sketcher.Constraint("Horizontal", 1),
    Sketcher.Constraint("Vertical", 2),
    Sketcher.Constraint("Horizontal", 3),
    Sketcher.Constraint("DistanceY", 0, 2, 0, 1, 13.0),
    Sketcher.Constraint("DistanceX", 1, 1, 1, 2, 2.9),
    Sketcher.Constraint("DistanceX", 0, 2, -1, 1, 0.65),
    Sketcher.Constraint("DistanceY", -1, 1, 0, 2, 204.07892),
])
pocket5 = doc.addObject("PartDesign::Pocket", "Pocket004")
body.addObject(pocket5)
pocket5.Profile = sketch11
pocket5.Length = 7.7

# Sketch on YZ plane
sketch12 = doc.addObject("Sketcher::SketchObject", "Sketch011")
body.addObject(sketch12)
sketch12.AttachmentSupport = (doc.YZ_Plane, [""])
sketch12.MapMode = "FlatFace"
sketch12.AttachmentOffset = App.Placement(V(0, 0, 2.25), App.Rotation())
sketch12.addGeometry([
    Part.LineSegment(V(3, 204, 0), V(-4, 204, 0)),
    Part.LineSegment(V(-4, 204, 0), V(-4, 217, 0)),
    Part.LineSegment(V(-4, 217, 0), V(3, 217, 0)),
    Part.LineSegment(V(3, 217, 0), V(3, 204, 0)),
], False)
sketch12.addConstraint([
    Sketcher.Constraint("Coincident", 0, 2, 1, 1),
    Sketcher.Constraint("Coincident", 1, 2, 2, 1),
    Sketcher.Constraint("Coincident", 2, 2, 3, 1),
    Sketcher.Constraint("Coincident", 3, 2, 0, 1),
    Sketcher.Constraint("Horizontal", 0),
    Sketcher.Constraint("Vertical", 1),
    Sketcher.Constraint("Horizontal", 2),
    Sketcher.Constraint("Vertical", 3),
    Sketcher.Constraint("DistanceY", 1, 1, 1, 2, 13.0),
    Sketcher.Constraint("DistanceX", 0, 2, 0, 1, 7.7),
    Sketcher.Constraint("DistanceX", 0, 2, -1, 1, 4.25),
    Sketcher.Constraint("DistanceY", -1, 1, 0, 2, 204.07892),
])
pocket6 = doc.addObject("PartDesign::Pocket", "Pocket005")
body.addObject(pocket6)
pocket6.Profile = sketch12
pocket6.Length = 5.9

# Sketch on XZ plane
sketch13 = doc.addObject("Sketcher::SketchObject", "Sketch012")
body.addObject(sketch13)
sketch13.AttachmentSupport = (doc.XZ_Plane, [""])
sketch13.MapMode = "FlatFace"
sketch13.AttachmentOffset = App.Placement(V(0, 0, -3.45), App.Rotation())
sketch13.addGeometry([
    Part.LineSegment(V(-2.7, 216.6, 0), V(-2.7, 204.1, 0)),
    Part.LineSegment(V(-2.7, 204.1, 0), V(1.3, 204.1, 0)),
    Part.LineSegment(V(1.3, 204.1, 0), V(1.3, 216.6, 0)),
    Part.LineSegment(V(1.3, 216.6, 0), V(-2.7, 216.6, 0)),
], False)
sketch13.addConstraint([
    Sketcher.Constraint("Coincident", 0, 2, 1, 1),
    Sketcher.Constraint("Coincident", 1, 2, 2, 1),
    Sketcher.Constraint("Coincident", 2, 2, 3, 1),
    Sketcher.Constraint("Coincident", 3, 2, 0, 1),
    Sketcher.Constraint("Vertical", 0),
    Sketcher.Constraint("Horizontal", 1),
    Sketcher.Constraint("Vertical", 2),
    Sketcher.Constraint("Horizontal", 3),
    Sketcher.Constraint("DistanceX", 1, 1, 1, 2, 4.0),
    Sketcher.Constraint("DistanceY", 0, 2, 0, 1, 12.5),
    Sketcher.Constraint("DistanceX", 0, 2, -1, 1, 2.7),
    Sketcher.Constraint("DistanceY", -1, 1, 0, 2, 204.07892),
])
pocket7 = doc.addObject("PartDesign::Pocket", "Pocket006")
body.addObject(pocket7)
pocket7.Profile = sketch13
pocket7.Length = 5.9

# Sketch on XZ plane
sketch14 = doc.addObject("Sketcher::SketchObject", "Sketch013")
body.addObject(sketch14)
sketch14.AttachmentSupport = (doc.XZ_Plane, [""])
sketch14.MapMode = "FlatFace"
sketch14.AttachmentOffset = App.Placement(V(0, 0, -4.25), App.Rotation())
sketch14.addGeometry([
    Part.LineSegment(V(-2.7, 200.7, 0), V(-2.7, 204.1, 0)),
    Part.LineSegment(V(-2.7, 204.1, 0), V(1.3, 204.1, 0)),
    Part.LineSegment(V(1.3, 204.1, 0), V(1.3, 200.7, 0)),
    Part.LineSegment(V(1.3, 200.7, 0), V(-2.7, 200.7, 0)),
], False)
sketch14.addConstraint([
    Sketcher.Constraint("Coincident", 0, 2, 1, 1),
    Sketcher.Constraint("Coincident", 1, 2, 2, 1),
    Sketcher.Constraint("Coincident", 2, 2, 3, 1),
    Sketcher.Constraint("Coincident", 3, 2, 0, 1),
    Sketcher.Constraint("Vertical", 0),
    Sketcher.Constraint("Horizontal", 1),
    Sketcher.Constraint("Vertical", 2),
    Sketcher.Constraint("Horizontal", 3),
    Sketcher.Constraint("DistanceX", 1, 1, 1, 2, 4.0),
    Sketcher.Constraint("DistanceX", 0, 2, -1, 1, 2.7),
    Sketcher.Constraint("DistanceY", 0, 1, 0, 2, 3.401908),
    Sketcher.Constraint("DistanceY", -1, 1, 0, 2, 204.07892),
])
pocket8 = doc.addObject("PartDesign::Pocket", "Pocket007")
body.addObject(pocket8)
pocket8.Profile = sketch14
pocket8.Length = 0.8
pocket8.Reversed = True

doc.recompute()
